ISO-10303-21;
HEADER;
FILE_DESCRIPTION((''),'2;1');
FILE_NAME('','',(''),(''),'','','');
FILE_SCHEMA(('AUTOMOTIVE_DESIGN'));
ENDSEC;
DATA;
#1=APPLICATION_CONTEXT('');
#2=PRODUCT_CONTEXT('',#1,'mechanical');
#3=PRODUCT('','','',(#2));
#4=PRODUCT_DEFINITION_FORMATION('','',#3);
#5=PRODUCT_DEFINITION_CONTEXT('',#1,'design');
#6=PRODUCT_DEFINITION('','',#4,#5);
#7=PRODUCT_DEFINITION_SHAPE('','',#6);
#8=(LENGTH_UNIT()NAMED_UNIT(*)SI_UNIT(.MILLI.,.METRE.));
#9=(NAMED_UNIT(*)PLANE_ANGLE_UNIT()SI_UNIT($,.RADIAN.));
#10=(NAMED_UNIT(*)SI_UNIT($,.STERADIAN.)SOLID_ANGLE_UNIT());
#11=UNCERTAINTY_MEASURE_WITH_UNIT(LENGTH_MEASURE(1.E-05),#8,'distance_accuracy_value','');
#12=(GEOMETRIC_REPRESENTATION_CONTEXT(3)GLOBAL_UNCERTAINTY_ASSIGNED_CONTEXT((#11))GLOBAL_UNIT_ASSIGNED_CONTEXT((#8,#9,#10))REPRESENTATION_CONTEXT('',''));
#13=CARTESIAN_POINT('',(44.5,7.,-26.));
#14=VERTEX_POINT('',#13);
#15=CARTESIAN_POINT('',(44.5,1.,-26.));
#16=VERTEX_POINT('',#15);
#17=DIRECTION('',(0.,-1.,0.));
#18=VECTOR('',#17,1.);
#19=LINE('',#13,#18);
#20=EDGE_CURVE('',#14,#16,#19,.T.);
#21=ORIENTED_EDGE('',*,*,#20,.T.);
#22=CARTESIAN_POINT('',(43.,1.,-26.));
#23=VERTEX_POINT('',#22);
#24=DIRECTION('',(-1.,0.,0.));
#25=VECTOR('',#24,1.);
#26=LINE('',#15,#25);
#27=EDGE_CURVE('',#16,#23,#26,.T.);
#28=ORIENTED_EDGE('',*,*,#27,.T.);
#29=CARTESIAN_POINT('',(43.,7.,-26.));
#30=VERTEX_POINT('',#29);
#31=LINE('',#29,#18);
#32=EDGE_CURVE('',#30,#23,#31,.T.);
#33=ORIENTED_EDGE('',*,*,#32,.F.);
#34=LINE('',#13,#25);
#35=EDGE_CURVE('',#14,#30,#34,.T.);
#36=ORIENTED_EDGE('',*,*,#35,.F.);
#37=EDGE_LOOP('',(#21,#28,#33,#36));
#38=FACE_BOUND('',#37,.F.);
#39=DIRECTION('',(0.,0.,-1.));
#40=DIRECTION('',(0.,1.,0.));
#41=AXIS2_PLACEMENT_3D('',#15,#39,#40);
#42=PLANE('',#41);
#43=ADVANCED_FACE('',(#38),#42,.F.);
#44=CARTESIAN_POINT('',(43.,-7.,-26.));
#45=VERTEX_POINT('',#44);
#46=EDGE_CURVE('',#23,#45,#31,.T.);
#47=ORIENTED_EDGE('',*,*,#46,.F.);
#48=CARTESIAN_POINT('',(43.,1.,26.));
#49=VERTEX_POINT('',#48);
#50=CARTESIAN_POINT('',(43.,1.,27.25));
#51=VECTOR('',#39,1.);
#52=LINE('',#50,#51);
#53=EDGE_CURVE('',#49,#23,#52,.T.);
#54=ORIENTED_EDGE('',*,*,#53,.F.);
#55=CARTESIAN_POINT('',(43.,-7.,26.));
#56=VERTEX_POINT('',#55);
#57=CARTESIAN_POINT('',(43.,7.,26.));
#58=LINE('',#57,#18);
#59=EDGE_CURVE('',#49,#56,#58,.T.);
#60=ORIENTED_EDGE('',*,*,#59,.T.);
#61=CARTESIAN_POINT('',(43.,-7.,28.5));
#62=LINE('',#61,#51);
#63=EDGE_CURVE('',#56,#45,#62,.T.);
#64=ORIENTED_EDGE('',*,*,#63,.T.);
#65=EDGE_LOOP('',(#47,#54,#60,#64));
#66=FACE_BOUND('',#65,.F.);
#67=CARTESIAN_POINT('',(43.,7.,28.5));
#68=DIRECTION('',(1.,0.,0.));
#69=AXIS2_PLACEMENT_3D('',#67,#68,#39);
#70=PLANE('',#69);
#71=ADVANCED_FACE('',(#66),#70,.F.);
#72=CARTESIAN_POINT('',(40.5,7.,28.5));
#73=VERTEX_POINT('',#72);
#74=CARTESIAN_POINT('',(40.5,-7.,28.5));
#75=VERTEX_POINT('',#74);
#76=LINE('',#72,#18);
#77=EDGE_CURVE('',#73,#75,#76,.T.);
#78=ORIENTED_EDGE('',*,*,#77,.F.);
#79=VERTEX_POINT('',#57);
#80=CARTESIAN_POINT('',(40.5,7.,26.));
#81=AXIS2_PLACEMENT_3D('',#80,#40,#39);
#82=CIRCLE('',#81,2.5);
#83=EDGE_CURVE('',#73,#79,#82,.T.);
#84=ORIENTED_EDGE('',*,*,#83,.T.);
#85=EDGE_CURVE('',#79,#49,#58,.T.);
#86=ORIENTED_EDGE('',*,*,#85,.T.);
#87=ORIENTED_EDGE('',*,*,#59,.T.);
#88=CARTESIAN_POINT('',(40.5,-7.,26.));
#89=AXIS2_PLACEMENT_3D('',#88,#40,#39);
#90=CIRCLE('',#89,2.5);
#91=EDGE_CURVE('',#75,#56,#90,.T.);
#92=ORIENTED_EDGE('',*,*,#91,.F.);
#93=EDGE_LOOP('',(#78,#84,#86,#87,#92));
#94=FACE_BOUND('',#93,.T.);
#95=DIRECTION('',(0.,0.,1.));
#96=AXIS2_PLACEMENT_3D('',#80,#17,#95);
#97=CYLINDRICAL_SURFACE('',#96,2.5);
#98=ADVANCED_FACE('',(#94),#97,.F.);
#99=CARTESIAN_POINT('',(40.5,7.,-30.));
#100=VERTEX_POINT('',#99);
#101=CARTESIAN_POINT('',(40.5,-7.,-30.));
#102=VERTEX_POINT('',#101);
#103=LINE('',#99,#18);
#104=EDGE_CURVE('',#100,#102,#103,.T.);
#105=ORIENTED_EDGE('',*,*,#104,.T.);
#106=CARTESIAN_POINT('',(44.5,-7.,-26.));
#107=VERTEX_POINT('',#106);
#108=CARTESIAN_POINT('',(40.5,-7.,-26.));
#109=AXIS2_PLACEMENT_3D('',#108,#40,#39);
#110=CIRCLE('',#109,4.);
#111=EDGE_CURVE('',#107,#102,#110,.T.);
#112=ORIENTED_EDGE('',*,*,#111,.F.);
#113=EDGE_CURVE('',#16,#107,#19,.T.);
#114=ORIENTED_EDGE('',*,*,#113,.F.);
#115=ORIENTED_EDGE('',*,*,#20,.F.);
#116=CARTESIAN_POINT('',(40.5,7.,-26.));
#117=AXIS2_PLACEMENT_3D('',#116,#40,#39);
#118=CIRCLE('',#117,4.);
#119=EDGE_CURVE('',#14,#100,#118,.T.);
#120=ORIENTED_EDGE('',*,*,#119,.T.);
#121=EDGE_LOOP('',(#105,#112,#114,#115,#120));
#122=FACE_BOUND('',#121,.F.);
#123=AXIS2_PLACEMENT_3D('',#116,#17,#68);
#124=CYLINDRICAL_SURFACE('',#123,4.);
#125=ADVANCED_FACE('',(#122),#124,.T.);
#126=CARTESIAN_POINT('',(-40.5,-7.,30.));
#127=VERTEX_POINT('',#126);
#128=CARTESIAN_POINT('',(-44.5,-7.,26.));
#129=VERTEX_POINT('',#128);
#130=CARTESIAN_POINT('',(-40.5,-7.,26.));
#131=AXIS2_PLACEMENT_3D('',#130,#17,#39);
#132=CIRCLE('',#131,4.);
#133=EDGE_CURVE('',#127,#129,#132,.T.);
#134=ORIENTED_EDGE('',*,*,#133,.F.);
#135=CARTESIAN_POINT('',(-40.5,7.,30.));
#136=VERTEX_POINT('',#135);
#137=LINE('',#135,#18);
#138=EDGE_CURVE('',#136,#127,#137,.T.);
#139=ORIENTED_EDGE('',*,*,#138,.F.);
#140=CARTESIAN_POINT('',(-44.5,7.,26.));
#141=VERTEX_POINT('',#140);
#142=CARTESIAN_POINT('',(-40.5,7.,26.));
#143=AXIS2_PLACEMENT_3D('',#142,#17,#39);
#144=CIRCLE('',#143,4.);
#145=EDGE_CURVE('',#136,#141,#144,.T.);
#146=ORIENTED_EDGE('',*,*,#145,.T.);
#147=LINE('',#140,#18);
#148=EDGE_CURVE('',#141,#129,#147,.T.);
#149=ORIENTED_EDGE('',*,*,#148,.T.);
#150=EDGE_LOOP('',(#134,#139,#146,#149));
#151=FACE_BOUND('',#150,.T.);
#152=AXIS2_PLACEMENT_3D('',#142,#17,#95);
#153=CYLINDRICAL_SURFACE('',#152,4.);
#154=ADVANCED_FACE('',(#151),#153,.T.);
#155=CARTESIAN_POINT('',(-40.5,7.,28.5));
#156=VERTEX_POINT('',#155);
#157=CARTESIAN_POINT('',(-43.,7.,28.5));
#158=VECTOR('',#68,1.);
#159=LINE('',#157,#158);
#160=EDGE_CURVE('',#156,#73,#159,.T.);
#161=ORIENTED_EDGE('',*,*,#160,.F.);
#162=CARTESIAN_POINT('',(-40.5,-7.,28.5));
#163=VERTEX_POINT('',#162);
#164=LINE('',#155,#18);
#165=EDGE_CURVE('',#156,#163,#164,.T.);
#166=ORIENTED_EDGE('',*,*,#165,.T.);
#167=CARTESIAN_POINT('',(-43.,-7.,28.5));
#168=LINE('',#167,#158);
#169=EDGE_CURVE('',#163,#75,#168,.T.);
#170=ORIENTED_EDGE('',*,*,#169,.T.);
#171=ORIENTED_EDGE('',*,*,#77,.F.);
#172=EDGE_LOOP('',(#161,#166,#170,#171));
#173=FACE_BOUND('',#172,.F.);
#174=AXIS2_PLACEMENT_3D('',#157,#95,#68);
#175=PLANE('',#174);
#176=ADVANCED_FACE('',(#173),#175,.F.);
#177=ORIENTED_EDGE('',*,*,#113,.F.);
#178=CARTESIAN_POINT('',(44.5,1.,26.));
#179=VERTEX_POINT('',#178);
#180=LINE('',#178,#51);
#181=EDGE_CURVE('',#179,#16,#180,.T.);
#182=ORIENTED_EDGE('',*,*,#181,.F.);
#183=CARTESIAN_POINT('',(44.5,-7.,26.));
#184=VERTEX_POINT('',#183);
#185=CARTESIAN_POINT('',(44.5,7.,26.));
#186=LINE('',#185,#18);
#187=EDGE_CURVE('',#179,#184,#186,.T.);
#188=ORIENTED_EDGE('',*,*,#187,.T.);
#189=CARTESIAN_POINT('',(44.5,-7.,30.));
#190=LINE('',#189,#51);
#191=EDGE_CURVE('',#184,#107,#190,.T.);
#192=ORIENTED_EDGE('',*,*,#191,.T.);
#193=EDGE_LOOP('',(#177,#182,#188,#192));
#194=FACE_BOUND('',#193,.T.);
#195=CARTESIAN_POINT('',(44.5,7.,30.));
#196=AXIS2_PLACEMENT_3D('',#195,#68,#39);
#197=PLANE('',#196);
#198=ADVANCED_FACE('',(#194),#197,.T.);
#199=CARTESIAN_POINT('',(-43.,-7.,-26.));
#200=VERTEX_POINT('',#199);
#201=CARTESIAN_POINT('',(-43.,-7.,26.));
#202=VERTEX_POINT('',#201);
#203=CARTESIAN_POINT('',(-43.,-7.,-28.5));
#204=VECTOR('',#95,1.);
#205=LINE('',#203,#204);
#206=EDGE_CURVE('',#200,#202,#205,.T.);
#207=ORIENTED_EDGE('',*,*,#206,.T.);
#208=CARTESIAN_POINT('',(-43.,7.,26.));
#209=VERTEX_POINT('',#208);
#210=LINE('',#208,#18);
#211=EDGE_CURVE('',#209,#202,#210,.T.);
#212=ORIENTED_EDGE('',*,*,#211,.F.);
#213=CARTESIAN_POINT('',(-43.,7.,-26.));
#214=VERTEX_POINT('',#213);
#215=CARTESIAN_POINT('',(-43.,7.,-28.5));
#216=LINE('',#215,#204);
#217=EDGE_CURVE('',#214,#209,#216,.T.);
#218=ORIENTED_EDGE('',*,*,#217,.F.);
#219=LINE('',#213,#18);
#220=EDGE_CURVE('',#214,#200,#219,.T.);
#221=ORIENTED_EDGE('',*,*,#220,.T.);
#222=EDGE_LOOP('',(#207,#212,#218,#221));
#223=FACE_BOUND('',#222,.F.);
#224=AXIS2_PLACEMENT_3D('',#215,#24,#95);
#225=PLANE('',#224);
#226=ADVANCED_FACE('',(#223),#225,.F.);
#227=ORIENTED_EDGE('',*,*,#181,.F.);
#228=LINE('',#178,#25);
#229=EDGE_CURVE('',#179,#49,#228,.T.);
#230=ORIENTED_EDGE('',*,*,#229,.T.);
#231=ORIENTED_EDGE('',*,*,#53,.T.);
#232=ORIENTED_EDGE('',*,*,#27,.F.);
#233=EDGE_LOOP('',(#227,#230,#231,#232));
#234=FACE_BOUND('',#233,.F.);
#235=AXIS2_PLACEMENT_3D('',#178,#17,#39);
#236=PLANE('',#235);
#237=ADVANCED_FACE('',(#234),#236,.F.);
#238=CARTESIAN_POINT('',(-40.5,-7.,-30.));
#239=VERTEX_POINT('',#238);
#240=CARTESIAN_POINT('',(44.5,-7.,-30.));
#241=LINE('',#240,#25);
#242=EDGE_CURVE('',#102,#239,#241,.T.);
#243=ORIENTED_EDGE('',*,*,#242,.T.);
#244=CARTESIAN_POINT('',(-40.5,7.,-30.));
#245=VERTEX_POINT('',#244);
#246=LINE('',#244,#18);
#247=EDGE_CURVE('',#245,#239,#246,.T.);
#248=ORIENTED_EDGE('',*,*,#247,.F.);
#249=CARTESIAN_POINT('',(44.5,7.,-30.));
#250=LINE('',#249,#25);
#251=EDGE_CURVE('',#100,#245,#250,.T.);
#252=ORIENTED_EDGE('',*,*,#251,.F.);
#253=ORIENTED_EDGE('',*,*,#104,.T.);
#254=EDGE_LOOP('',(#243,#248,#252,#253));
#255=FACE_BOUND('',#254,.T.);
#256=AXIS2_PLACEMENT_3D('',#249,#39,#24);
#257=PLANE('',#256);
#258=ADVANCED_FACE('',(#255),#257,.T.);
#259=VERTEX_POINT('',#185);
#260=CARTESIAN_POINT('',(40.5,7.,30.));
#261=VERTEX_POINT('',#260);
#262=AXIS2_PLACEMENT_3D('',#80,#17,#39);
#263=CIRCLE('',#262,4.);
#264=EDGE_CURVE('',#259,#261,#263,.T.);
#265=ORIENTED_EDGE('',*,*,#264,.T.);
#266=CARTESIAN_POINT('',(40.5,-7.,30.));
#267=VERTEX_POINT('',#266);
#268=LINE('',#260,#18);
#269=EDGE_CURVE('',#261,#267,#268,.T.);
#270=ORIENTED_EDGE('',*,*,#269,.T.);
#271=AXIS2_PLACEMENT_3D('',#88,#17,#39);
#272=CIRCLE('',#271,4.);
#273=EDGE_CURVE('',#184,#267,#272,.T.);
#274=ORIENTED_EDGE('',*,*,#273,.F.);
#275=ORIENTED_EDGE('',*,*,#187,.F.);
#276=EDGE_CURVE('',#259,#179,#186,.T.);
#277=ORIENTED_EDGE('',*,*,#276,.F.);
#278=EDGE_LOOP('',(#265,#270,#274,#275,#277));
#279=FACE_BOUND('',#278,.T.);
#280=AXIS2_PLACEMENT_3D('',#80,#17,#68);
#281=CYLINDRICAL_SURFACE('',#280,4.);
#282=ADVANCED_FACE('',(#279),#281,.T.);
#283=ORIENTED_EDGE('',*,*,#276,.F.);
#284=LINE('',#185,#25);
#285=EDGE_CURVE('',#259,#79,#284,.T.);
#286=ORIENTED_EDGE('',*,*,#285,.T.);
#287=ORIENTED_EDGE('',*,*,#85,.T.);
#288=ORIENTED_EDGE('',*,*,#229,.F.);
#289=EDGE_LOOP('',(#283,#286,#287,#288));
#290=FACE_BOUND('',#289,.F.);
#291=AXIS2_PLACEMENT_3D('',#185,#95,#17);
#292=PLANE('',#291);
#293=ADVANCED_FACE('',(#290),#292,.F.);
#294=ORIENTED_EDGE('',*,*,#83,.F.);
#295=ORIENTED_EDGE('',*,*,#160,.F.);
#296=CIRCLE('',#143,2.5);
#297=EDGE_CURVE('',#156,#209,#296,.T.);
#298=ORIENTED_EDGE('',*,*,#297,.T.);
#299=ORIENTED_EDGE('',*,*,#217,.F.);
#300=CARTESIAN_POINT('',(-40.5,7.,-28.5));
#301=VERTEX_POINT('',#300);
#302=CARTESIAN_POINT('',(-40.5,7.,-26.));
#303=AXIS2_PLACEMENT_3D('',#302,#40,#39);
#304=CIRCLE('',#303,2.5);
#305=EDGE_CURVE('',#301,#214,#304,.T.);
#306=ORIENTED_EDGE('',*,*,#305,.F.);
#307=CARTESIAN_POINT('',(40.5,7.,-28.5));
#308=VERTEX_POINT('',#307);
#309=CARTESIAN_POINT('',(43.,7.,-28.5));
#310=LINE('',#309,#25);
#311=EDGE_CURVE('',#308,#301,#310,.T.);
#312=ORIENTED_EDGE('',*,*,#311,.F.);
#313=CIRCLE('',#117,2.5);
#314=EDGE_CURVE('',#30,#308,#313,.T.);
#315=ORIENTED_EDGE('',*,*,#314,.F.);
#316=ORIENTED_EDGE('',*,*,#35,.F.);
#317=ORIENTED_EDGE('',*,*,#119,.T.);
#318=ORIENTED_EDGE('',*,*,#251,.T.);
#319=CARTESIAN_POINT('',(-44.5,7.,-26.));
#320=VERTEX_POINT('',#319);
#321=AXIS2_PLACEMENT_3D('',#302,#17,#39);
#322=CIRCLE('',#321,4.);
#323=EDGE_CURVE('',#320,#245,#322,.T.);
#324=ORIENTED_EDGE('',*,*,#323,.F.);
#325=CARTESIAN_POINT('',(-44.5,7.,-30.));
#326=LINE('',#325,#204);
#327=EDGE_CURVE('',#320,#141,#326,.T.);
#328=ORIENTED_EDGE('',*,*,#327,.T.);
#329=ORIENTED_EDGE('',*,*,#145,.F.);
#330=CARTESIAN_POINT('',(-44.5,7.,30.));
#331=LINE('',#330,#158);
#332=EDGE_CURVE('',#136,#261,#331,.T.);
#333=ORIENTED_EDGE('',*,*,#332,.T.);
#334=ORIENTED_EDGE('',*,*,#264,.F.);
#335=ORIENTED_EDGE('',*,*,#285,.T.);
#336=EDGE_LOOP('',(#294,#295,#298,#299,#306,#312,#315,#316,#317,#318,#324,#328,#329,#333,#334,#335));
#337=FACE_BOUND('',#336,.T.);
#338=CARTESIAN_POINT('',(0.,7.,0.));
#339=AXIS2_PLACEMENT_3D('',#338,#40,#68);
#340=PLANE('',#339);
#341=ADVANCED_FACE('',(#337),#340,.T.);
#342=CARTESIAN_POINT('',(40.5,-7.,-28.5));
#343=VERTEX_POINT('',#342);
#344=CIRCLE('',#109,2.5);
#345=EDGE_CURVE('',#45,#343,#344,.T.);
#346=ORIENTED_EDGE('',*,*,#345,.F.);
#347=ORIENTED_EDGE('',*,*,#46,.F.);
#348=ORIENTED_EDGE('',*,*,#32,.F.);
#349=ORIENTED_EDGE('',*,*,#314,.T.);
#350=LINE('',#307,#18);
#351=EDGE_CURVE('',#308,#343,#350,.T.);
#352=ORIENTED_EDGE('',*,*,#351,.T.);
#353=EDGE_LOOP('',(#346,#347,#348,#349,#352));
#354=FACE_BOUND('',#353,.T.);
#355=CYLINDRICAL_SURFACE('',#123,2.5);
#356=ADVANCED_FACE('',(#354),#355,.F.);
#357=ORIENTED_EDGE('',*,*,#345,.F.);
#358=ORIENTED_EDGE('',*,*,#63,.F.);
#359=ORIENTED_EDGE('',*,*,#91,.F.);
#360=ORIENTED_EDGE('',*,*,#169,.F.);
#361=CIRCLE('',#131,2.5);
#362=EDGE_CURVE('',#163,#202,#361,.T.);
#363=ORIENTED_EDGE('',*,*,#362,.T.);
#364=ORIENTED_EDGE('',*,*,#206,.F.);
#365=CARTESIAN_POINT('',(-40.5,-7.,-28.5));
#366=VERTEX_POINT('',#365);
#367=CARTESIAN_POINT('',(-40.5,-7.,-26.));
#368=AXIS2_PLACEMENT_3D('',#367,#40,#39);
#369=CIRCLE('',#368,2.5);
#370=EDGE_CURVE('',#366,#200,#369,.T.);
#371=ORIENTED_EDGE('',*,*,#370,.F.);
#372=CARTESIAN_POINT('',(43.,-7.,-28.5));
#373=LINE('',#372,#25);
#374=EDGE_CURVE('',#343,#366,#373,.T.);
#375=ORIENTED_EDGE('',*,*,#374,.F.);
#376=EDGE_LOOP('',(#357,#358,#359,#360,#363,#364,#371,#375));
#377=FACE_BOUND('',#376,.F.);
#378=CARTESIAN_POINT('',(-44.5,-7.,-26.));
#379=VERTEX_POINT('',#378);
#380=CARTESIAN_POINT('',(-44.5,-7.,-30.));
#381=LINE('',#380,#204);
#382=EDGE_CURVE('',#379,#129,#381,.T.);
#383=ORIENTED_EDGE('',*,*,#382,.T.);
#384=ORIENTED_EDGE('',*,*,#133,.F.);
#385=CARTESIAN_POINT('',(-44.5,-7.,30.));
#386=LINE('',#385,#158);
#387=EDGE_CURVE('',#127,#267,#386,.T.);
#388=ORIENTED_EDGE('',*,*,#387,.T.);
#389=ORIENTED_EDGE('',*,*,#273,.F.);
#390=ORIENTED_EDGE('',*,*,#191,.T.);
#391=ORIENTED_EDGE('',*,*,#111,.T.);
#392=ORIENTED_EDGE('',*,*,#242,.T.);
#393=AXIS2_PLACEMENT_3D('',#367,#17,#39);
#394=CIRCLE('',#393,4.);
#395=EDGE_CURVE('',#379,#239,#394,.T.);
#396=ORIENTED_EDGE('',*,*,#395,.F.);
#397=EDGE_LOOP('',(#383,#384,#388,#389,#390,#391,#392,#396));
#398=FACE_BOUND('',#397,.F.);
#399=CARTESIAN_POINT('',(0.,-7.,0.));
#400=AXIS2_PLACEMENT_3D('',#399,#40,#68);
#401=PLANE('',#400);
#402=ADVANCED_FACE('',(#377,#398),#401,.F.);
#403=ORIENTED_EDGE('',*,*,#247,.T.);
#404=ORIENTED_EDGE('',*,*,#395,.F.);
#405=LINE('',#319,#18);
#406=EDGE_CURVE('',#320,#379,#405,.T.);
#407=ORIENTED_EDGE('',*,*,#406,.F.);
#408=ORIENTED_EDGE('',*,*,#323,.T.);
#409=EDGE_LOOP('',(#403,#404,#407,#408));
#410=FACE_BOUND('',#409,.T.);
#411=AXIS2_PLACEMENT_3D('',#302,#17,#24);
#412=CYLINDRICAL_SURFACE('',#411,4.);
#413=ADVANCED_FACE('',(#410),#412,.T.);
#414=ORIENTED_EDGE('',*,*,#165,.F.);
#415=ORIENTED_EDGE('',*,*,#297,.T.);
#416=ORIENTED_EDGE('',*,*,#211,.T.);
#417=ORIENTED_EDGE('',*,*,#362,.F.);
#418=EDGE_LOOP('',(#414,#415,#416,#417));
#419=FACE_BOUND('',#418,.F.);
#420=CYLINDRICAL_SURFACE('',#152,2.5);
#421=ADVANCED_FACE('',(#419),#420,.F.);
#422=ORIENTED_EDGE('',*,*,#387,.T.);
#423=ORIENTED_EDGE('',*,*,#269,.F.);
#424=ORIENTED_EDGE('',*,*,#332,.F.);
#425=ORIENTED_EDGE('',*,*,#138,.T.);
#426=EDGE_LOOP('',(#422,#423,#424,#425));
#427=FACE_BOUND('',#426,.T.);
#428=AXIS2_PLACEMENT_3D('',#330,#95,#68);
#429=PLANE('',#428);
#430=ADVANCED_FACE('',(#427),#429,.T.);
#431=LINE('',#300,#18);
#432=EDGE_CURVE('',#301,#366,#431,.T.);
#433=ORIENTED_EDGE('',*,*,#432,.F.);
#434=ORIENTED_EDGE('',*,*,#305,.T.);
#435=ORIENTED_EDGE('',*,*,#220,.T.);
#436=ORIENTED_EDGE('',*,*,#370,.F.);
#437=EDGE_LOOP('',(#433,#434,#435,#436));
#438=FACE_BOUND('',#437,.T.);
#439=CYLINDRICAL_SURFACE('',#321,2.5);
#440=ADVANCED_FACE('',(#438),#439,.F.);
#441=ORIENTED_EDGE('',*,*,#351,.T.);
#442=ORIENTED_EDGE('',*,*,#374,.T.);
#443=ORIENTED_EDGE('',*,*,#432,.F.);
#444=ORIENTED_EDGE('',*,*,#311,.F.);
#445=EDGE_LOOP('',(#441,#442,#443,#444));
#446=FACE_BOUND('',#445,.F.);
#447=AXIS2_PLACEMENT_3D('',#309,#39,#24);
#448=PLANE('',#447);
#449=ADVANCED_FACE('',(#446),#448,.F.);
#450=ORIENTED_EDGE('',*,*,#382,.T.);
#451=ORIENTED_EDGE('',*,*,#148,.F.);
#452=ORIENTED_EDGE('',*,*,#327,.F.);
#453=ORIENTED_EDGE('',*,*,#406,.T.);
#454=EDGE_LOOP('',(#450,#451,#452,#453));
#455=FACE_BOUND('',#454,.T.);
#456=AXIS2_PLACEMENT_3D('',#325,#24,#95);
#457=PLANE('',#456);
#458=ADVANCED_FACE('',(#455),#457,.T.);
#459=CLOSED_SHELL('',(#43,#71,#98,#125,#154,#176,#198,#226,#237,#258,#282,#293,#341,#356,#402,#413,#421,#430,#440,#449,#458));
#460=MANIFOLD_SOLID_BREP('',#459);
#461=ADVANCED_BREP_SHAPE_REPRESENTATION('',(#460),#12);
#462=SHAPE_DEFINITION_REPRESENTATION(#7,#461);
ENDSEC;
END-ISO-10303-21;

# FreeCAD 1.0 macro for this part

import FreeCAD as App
import Part
import Sketcher


def edges_at(feature, points):
    """Names of the edges that pass closest to the given points."""
    edges = feature.Shape.Edges
    near = lambda p: min(range(len(edges)), key=lambda i: edges[i].distToShape(Part.Vertex(*p))[0])
    return sorted({f"Edge{near(p) + 1}" for p in points})


def add_polygon(sketch, points):
    """Adds a closed chain of lines whose ends are joined by coincident constraints."""
    first, n = sketch.GeometryCount, len(points)
    for a, b in zip(points, points[1:] + points[:1]):
        sketch.addGeometry(Part.LineSegment(App.Vector(*a, 0), App.Vector(*b, 0)), False)
    for i in range(n):
        sketch.addConstraint(Sketcher.Constraint("Coincident", first + i, 2, first + (i + 1) % n, 1))

doc = App.newDocument("Part")
body = doc.addObject("PartDesign::Body", "Body")

# Sketch on XZ plane
sketch1 = body.newObject("Sketcher::SketchObject", "Sketch")
sketch1.AttachmentSupport = (doc.getObject("XZ_Plane"), [""])
sketch1.MapMode = "FlatFace"
sketch1.AttachmentOffset = App.Placement(App.Vector(0, 0, -7), App.Rotation())
add_polygon(sketch1, [(44, 30), (44, -30), (-44, -30), (-44, 30)])  # lines 0-3
add_polygon(sketch1, [(43, 28), (-43, 28), (-43, -28), (43, -28)])  # lines 4-7
sketch1.addConstraint(Sketcher.Constraint("Vertical", 0))
sketch1.addConstraint(Sketcher.Constraint("Horizontal", 1))
sketch1.addConstraint(Sketcher.Constraint("Vertical", 2))
sketch1.addConstraint(Sketcher.Constraint("Horizontal", 3))
sketch1.addConstraint(Sketcher.Constraint("Horizontal", 4))
sketch1.addConstraint(Sketcher.Constraint("Vertical", 5))
sketch1.addConstraint(Sketcher.Constraint("Horizontal", 6))
sketch1.addConstraint(Sketcher.Constraint("Vertical", 7))
sketch1.addConstraint(Sketcher.Constraint("Symmetric", 0, 2, 2, 2, -1, 1))
sketch1.addConstraint(Sketcher.Constraint("Symmetric", 4, 2, 6, 2, -1, 1))
sketch1.addConstraint(Sketcher.Constraint("DistanceX", 4, 2, 4, 1, 86.0))
sketch1.addConstraint(Sketcher.Constraint("DistanceY", 5, 2, 5, 1, 57.0))
sketch1.addConstraint(Sketcher.Constraint("DistanceY", 0, 2, -1, 1, 30.0))
sketch1.addConstraint(Sketcher.Constraint("DistanceX", 2, 2, 4, 2, 1.5))
pad1 = body.newObject("PartDesign::Pad", "Pad")
pad1.Profile = sketch1
pad1.Length = 14
doc.recompute()

fillet = body.newObject("PartDesign::Fillet", "Fillet")
fillet.Base = (pad1, edges_at(pad1, [
    (43, 0, 28.5),
    (43, 0, -28.5),
    (-43, 0, 28.5),
    (-43, 0, -28.5),
]))
fillet.Radius = 2.5
doc.recompute()

fillet2 = body.newObject("PartDesign::Fillet", "Fillet001")
fillet2.Base = (fillet, edges_at(fillet, [
    (-44.5, 0, -30),
    (-44.5, 0, 30),
    (44.5, 0, 30),
    (44.5, 0, -30),
]))
fillet2.Radius = 4

# Sketch on YZ plane
sketch2 = body.newObject("Sketcher::SketchObject", "Sketch001")
sketch2.AttachmentSupport = (doc.getObject("YZ_Plane"), [""])
sketch2.MapMode = "FlatFace"
sketch2.AttachmentOffset = App.Placement(App.Vector(0, 0, 44.5), App.Rotation())
add_polygon(sketch2, [(7, -26), (7, 26), (1, 26), (1, -26)])  # lines 0-3
sketch2.addConstraint(Sketcher.Constraint("Vertical", 0))
sketch2.addConstraint(Sketcher.Constraint("Horizontal", 1))
sketch2.addConstraint(Sketcher.Constraint("Vertical", 2))
sketch2.addConstraint(Sketcher.Constraint("Horizontal", 3))
sketch2.addConstraint(Sketcher.Constraint("DistanceX", 1, 2, 1, 1, 6.0))
sketch2.addConstraint(Sketcher.Constraint("DistanceY", 0, 1, 0, 2, 52.0))
sketch2.addConstraint(Sketcher.Constraint("DistanceX", -1, 1, 0, 2, 7.0))
sketch2.addConstraint(Sketcher.Constraint("DistanceY", -1, 1, 0, 2, 26.0))
pocket1 = body.newObject("PartDesign::Pocket", "Pocket")
pocket1.Profile = sketch2
pocket1.Length = 3

doc.recompute()
